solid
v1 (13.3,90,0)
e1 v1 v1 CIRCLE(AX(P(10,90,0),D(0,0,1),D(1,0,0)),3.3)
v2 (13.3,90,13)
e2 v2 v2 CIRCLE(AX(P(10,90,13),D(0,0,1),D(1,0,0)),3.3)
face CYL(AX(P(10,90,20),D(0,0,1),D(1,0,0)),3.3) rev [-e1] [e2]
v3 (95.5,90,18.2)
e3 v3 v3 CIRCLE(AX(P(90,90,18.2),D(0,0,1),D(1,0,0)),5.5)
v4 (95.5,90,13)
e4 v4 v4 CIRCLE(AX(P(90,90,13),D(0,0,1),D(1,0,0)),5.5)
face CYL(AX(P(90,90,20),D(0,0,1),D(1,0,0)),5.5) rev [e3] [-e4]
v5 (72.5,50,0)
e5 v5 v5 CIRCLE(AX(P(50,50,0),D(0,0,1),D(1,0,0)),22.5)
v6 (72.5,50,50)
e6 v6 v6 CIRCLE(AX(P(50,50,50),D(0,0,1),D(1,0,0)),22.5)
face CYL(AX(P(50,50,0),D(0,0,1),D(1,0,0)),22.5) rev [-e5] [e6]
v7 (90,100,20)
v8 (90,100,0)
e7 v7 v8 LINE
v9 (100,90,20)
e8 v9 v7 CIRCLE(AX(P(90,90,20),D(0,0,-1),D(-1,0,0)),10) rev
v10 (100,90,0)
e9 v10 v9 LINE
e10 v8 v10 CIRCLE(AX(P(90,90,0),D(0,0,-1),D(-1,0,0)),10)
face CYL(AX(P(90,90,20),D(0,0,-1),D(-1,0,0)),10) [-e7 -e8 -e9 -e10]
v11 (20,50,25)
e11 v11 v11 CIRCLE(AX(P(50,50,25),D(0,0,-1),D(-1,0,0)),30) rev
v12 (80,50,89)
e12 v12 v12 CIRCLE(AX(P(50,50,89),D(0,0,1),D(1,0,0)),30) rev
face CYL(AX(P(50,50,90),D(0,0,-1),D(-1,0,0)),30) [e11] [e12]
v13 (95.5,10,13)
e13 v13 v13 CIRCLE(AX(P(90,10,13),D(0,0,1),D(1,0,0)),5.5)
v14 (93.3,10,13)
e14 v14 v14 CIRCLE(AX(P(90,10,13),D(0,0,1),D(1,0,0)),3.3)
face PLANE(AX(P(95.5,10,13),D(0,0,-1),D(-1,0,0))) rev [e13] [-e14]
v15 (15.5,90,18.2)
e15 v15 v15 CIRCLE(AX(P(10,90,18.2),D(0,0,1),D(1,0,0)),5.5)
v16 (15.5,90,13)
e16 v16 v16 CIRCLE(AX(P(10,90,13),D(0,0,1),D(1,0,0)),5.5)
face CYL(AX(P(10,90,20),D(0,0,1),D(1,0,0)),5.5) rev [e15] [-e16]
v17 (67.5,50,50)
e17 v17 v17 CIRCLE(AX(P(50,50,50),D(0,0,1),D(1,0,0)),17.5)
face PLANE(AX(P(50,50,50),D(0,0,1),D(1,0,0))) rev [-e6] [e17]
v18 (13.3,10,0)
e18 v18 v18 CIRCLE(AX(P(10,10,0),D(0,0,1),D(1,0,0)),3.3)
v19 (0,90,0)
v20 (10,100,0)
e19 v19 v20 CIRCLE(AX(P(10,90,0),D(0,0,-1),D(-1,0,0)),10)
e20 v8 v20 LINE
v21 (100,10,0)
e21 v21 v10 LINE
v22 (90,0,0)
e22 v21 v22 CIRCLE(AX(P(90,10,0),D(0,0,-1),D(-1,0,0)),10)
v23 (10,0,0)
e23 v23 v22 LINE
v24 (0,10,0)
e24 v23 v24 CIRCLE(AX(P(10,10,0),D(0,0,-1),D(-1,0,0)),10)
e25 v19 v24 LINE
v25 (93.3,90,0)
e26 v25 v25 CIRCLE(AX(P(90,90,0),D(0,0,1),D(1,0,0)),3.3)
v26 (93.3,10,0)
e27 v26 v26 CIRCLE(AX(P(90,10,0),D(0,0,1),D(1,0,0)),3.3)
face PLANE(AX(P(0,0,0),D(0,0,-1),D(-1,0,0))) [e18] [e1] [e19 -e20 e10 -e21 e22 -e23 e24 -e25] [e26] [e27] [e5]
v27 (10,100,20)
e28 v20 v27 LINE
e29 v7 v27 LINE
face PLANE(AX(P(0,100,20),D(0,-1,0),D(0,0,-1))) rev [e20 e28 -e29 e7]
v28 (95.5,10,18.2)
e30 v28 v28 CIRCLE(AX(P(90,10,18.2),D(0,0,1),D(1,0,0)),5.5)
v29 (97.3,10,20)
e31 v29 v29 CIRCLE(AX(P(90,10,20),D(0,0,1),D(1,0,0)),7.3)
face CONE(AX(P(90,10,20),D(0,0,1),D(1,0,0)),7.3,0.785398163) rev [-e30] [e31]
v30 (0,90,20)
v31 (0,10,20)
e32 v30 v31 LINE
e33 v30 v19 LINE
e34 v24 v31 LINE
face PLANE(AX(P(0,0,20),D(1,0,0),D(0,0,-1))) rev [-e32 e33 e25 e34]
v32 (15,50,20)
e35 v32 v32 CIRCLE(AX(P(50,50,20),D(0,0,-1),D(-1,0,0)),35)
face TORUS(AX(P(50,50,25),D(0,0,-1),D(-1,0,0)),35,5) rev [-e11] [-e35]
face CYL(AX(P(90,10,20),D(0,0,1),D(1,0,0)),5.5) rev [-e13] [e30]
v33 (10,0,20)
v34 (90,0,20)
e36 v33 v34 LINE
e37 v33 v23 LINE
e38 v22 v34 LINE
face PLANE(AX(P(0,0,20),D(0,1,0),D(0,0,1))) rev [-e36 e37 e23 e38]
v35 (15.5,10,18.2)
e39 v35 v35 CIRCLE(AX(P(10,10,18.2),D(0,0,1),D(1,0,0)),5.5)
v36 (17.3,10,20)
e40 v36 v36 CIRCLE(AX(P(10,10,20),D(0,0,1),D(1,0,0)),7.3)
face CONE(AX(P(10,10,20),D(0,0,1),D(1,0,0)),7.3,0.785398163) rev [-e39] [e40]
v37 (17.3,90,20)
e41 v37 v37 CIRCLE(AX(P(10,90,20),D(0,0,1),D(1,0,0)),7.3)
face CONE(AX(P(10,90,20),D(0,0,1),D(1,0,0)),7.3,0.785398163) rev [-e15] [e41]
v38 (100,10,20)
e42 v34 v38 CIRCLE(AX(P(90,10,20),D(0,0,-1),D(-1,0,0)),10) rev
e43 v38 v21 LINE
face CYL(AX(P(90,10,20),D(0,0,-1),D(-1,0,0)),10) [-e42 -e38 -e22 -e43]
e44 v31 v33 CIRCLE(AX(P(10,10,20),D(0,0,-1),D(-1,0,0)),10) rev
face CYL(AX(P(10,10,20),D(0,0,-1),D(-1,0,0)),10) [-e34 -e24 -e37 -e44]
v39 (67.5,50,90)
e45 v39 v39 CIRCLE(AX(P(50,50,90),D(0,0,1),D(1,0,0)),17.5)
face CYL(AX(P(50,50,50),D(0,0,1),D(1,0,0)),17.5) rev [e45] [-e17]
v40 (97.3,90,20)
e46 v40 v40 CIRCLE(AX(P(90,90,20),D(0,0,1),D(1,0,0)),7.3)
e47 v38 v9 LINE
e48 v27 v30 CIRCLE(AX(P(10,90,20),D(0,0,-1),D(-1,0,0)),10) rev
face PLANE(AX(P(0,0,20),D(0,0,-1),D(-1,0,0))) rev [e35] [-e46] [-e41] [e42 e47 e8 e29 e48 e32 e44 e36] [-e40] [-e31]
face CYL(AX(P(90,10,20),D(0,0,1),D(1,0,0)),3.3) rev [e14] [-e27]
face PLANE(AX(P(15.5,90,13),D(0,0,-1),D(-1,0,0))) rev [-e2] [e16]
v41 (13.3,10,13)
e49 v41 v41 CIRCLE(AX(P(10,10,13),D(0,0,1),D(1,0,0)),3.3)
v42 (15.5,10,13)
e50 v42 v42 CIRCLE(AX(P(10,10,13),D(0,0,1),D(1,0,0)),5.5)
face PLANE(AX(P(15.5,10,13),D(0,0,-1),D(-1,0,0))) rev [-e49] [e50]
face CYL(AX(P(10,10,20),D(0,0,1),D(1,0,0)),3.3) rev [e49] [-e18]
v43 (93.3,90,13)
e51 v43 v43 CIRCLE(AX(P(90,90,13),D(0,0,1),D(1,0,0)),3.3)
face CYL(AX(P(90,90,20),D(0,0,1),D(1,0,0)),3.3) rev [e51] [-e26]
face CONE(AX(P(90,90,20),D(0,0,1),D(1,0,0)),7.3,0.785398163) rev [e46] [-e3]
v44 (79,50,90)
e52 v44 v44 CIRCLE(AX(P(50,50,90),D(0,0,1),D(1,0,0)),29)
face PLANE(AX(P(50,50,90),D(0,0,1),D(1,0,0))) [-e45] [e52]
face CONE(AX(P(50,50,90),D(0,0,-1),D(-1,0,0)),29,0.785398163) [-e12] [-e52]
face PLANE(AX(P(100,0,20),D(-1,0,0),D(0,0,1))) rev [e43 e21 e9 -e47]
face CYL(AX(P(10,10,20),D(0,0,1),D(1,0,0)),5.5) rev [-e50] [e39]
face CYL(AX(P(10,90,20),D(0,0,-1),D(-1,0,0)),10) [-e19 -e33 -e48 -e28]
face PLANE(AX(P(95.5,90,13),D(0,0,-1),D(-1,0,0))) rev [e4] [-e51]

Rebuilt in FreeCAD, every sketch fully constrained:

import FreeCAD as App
import Part
import Sketcher
Q = App.Units.Quantity


def edges_at(feature, points):
    """Names of the edges that pass closest to the given points."""
    edges = feature.Shape.Edges
    near = lambda p: min(range(len(edges)), key=lambda i: edges[i].distToShape(Part.Vertex(*p))[0])
    return sorted({f"Edge{near(p) + 1}" for p in points})

doc = App.newDocument("Part")
body = doc.addObject("PartDesign::Body", "Body")

sketch1 = doc.addObject("Sketcher::SketchObject", "Sketch")
body.addObject(sketch1)
sketch1.AttachmentSupport = (doc.XY_Plane, [""])
sketch1.MapMode = "FlatFace"
sketch1.addGeometry([
    Part.LineSegment(App.Vector(0, 100, 0), App.Vector(0, 0, 0)),
    Part.LineSegment(App.Vector(0, 0, 0), App.Vector(100, 0, 0)),
    Part.LineSegment(App.Vector(100, 0, 0), App.Vector(100, 100, 0)),
    Part.LineSegment(App.Vector(100, 100, 0), App.Vector(0, 100, 0)),
], False)
sketch1.addConstraint([
    Sketcher.Constraint("Coincident", 0, 2, 1, 1),
    Sketcher.Constraint("Coincident", 1, 2, 2, 1),
    Sketcher.Constraint("Coincident", 2, 2, 3, 1),
    Sketcher.Constraint("Coincident", 3, 2, 0, 1),
    Sketcher.Constraint("Vertical", 0),
    Sketcher.Constraint("Horizontal", 1),
    Sketcher.Constraint("Vertical", 2),
    Sketcher.Constraint("Horizontal", 3),
    Sketcher.Constraint("Coincident", 0, 2, -1, 1),
    Sketcher.Constraint("Equal", 3, 0),
    Sketcher.Constraint("DistanceX", 1, 1, 1, 2, 100.0),
])
pad1 = doc.addObject("PartDesign::Pad", "Pad")
body.addObject(pad1)
pad1.Profile = sketch1
pad1.Length = 20

sketch2 = doc.addObject("Sketcher::SketchObject", "Sketch001")
body.addObject(sketch2)
sketch2.AttachmentSupport = (doc.XY_Plane, [""])
sketch2.MapMode = "FlatFace"
sketch2.AttachmentOffset = App.Placement(App.Vector(0, 0, 20), App.Rotation())
sketch2.addGeometry(Part.Circle(App.Vector(50, 50, 0), App.Vector(0, 0, 1), 30), False)
sketch2.addConstraint([
    Sketcher.Constraint("Diameter", 0, 60.0),
    Sketcher.Constraint("DistanceX", -1, 1, 0, 3, 50.0),
    Sketcher.Constraint("DistanceY", -1, 1, 0, 3, 50.0),
])
pad2 = doc.addObject("PartDesign::Pad", "Pad001")
body.addObject(pad2)
pad2.Profile = sketch2
pad2.Length = 70
doc.recompute()

fillet = doc.addObject("PartDesign::Fillet", "Fillet")
body.addObject(fillet)
fillet.Base = (pad2, edges_at(pad2, [(20, 50, 20)]))
fillet.Radius = 5
doc.recompute()

chamfer = doc.addObject("PartDesign::Chamfer", "Chamfer")
body.addObject(chamfer)
chamfer.Base = (fillet, edges_at(fillet, [(20, 50, 90)]))
chamfer.Size = 1
doc.recompute()

fillet2 = doc.addObject("PartDesign::Fillet", "Fillet001")
body.addObject(fillet2)
fillet2.Base = (chamfer, edges_at(chamfer, [
    (0, 100, 10),
    (100, 100, 10),
    (100, 0, 10),
    (0, 0, 10),
]))
fillet2.Radius = 10

sketch3 = doc.addObject("Sketcher::SketchObject", "Sketch002")
body.addObject(sketch3)
sketch3.AttachmentSupport = (doc.YZ_Plane, [""])
sketch3.MapMode = "FlatFace"
sketch3.AttachmentOffset = App.Placement(App.Vector(0, 0, 10), App.Rotation())
sketch3.addGeometry([
    Part.LineSegment(App.Vector(90, 0, 0), App.Vector(90, 20, 0)),
    Part.LineSegment(App.Vector(90, 20, 0), App.Vector(82.7, 20, 0)),
    Part.LineSegment(App.Vector(82.7, 20, 0), App.Vector(84.5, 18.2, 0)),
    Part.LineSegment(App.Vector(84.5, 18.2, 0), App.Vector(84.5, 13, 0)),
    Part.LineSegment(App.Vector(84.5, 13, 0), App.Vector(86.7, 13, 0)),
    Part.LineSegment(App.Vector(86.7, 13, 0), App.Vector(86.7, 0, 0)),
    Part.LineSegment(App.Vector(86.7, 0, 0), App.Vector(90, 0, 0)),
], False)
sketch3.addGeometry(Part.LineSegment(App.Vector(90, 20, 0), App.Vector(90, 0, 0)), True)
sketch3.addConstraint([
    Sketcher.Constraint("Coincident", 0, 2, 1, 1),
    Sketcher.Constraint("Coincident", 1, 2, 2, 1),
    Sketcher.Constraint("Coincident", 2, 2, 3, 1),
    Sketcher.Constraint("Coincident", 3, 2, 4, 1),
    Sketcher.Constraint("Coincident", 4, 2, 5, 1),
    Sketcher.Constraint("Coincident", 5, 2, 6, 1),
    Sketcher.Constraint("Coincident", 6, 2, 0, 1),
    Sketcher.Constraint("Vertical", 0),
    Sketcher.Constraint("Horizontal", 1),
    Sketcher.Constraint("Vertical", 3),
    Sketcher.Constraint("Horizontal", 4),
    Sketcher.Constraint("Vertical", 5),
    Sketcher.Constraint("Horizontal", 6),
    Sketcher.Constraint("Vertical", 7),
    Sketcher.Constraint("Coincident", 7, 1, 0, 2),
    Sketcher.Constraint("PointOnObject", 5, 2, -1),
    Sketcher.Constraint("PointOnObject", 7, 2, -1),
    Sketcher.Constraint("DistanceY", 0, 1, 0, 2, 20.0),
    Sketcher.Constraint("DistanceY", 5, 2, 5, 1, 13.0),
    Sketcher.Constraint("Angle", 2, Q("-45 deg")),
    Sketcher.Constraint("DistanceX", 1, 2, 1, 1, 7.3),
    Sketcher.Constraint("DistanceX", 4, 1, 4, 2, 2.2),
    Sketcher.Constraint("DistanceX", 6, 1, 6, 2, 3.3),
    Sketcher.Constraint("DistanceX", -1, 1, 0, 2, 90.0),
])
groove = doc.addObject("PartDesign::Groove", "Groove")
body.addObject(groove)
groove.Profile = sketch3
groove.ReferenceAxis = (sketch3, ["Axis0"])
groove.Angle = 360
doc.recompute()

linearpattern = doc.addObject("PartDesign::LinearPattern", "LinearPattern")
body.addObject(linearpattern)
linearpattern.Originals = [groove]
linearpattern.Direction = (doc.Y_Axis, [""])
linearpattern.Mode = "offset"
linearpattern.Offset = 80
linearpattern.Occurrences = 2
linearpattern.Reversed = True
body.Tip = linearpattern
doc.recompute()

datumline = doc.addObject("PartDesign::Line", "DatumLine")
body.addObject(datumline)
datumline.Placement = App.Placement(App.Vector(0, 0, 0), App.Rotation(App.Vector(0, 0, 1), App.Vector(0.707106781, -0.707106781, 0)))
linearpattern2 = doc.addObject("PartDesign::LinearPattern", "LinearPattern001")
body.addObject(linearpattern2)
linearpattern2.Originals = [groove]
linearpattern2.Direction = (datumline, [""])
linearpattern2.Mode = "offset"
linearpattern2.Offset = 113.137085
linearpattern2.Occurrences = 2
body.Tip = linearpattern2
doc.recompute()

linearpattern3 = doc.addObject("PartDesign::LinearPattern", "LinearPattern002")
body.addObject(linearpattern3)
linearpattern3.Originals = [groove]
linearpattern3.Direction = (doc.X_Axis, [""])
linearpattern3.Mode = "offset"
linearpattern3.Offset = 80
linearpattern3.Occurrences = 2
body.Tip = linearpattern3

sketch4 = doc.addObject("Sketcher::SketchObject", "Sketch003")
body.addObject(sketch4)
sketch4.AttachmentSupport = (doc.XY_Plane, [""])
sketch4.MapMode = "FlatFace"
sketch4.AttachmentOffset = App.Placement(App.Vector(0, 0, 90), App.Rotation())
sketch4.addGeometry(Part.Circle(App.Vector(50, 50, 0), App.Vector(0, 0, 1), 17.5), False)
sketch4.addConstraint([
    Sketcher.Constraint("Diameter", 0, 35.0),
    Sketcher.Constraint("DistanceX", -1, 1, 0, 3, 50.0),
    Sketcher.Constraint("DistanceY", -1, 1, 0, 3, 50.0),
])
pocket1 = doc.addObject("PartDesign::Pocket", "Pocket")
body.addObject(pocket1)
pocket1.Profile = sketch4
pocket1.Length = 40

sketch5 = doc.addObject("Sketcher::SketchObject", "Sketch004")
body.addObject(sketch5)
sketch5.AttachmentSupport = (doc.XY_Plane, [""])
sketch5.MapMode = "FlatFace"
sketch5.AttachmentOffset = App.Placement(App.Vector(0, 0, 50), App.Rotation())
sketch5.addGeometry(Part.Circle(App.Vector(50, 50, 0), App.Vector(0, 0, 1), 22.5), False)
sketch5.addConstraint([
    Sketcher.Constraint("Diameter", 0, 45.0),
    Sketcher.Constraint("DistanceX", -1, 1, 0, 3, 50.0),
    Sketcher.Constraint("DistanceY", -1, 1, 0, 3, 50.0),
])
pocket2 = doc.addObject("PartDesign::Pocket", "Pocket001")
body.addObject(pocket2)
pocket2.Profile = sketch5
pocket2.Length = 50

doc.recompute()
